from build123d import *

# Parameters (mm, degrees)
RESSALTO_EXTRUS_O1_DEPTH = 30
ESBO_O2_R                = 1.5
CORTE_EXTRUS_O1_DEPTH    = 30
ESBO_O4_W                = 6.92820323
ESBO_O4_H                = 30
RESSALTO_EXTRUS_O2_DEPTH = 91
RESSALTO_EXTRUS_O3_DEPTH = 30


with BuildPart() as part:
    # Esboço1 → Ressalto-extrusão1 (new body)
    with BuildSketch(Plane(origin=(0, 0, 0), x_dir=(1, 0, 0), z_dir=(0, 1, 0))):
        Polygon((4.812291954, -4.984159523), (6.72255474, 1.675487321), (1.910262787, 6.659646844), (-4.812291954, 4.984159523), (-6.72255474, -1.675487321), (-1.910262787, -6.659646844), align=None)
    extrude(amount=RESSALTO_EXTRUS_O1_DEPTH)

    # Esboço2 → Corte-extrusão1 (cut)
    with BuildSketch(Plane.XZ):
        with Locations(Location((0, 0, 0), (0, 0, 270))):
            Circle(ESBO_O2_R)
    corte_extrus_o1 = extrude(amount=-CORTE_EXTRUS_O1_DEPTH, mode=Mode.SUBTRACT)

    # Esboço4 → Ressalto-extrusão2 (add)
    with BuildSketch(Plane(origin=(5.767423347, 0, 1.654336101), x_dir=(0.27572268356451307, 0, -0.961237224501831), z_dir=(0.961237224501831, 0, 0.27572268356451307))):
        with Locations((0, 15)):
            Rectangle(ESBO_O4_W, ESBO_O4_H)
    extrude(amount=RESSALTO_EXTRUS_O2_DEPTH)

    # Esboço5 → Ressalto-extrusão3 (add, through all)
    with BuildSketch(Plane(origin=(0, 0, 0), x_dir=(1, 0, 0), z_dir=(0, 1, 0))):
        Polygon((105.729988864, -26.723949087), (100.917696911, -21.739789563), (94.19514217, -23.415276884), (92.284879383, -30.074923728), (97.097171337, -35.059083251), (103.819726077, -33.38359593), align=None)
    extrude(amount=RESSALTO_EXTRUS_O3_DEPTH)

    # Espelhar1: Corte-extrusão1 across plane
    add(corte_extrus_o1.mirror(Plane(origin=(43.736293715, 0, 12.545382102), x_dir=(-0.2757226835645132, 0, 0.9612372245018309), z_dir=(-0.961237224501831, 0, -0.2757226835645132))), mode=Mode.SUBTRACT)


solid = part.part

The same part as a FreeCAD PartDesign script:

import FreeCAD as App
import Part
import Sketcher
Q = App.Units.Quantity


def add_polygon(sketch, points):
    """Adds a closed chain of lines whose ends are joined by coincident constraints."""
    first, n = sketch.GeometryCount, len(points)
    for a, b in zip(points, points[1:] + points[:1]):
        sketch.addGeometry(Part.LineSegment(App.Vector(*a, 0), App.Vector(*b, 0)), False)
    for i in range(n):
        sketch.addConstraint(Sketcher.Constraint("Coincident", first + i, 2, first + (i + 1) % n, 1))

doc = App.newDocument("Part")
body = doc.addObject("PartDesign::Body", "Body")

sketch1 = body.newObject("Sketcher::SketchObject", "Sketch")
sketch1.AttachmentSupport = (doc.getObject("XZ_Plane"), [""])
sketch1.MapMode = "FlatFace"
add_polygon(sketch1, [(5, 5), (7, -2), (2, -7), (-5, -5), (-7, 2), (-2, 7)])
sketch1.addConstraint([
    Sketcher.Constraint("Symmetric", 0, 2, 3, 2, -1, 1),
    Sketcher.Constraint("Symmetric", 1, 2, 4, 2, -1, 1),
    Sketcher.Constraint("Symmetric", 2, 2, 5, 2, -1, 1),
    Sketcher.Constraint("Equal", 0, 1),
    Sketcher.Constraint("Equal", 1, 2),
    Sketcher.Constraint("DistanceX", 2, 2, -1, 1, Q("4.812292 mm")),
    Sketcher.Constraint("DistanceY", 2, 2, -1, 1, Q("4.98416 mm")),
    Sketcher.Constraint("DistanceX", 1, 2, 0, 2, Q("4.812292 mm")),
    Sketcher.Constraint("DistanceY", 1, 2, 0, 2, Q("4.98416 mm")),
])
pad1 = body.newObject("PartDesign::Pad", "Pad")
pad1.Profile = sketch1
pad1.Length = 30
pad1.Reversed = True

sketch2 = body.newObject("Sketcher::SketchObject", "Sketch001")
sketch2.AttachmentSupport = (doc.getObject("XZ_Plane"), [""])
sketch2.MapMode = "FlatFace"
sketch2.addGeometry(Part.Circle(App.Vector(0, 0, 0), App.Vector(0, 0, 1), 1.5), False)
sketch2.addConstraint([
    Sketcher.Constraint("Coincident", 0, 3, -1, 1),
    Sketcher.Constraint("Diameter", 0, Q("3 mm")),
])
pocket1 = body.newObject("PartDesign::Pocket", "Pocket")
pocket1.Profile = sketch2
pocket1.Length = 30

sketch3 = body.newObject("Sketcher::SketchObject", "Sketch002")
sketch3.Placement = App.Placement(App.Vector(5.767423, 0, 1.654336), App.Rotation(App.Vector(0.275722684, 0, -0.961237225), App.Vector(0, 1.000000001, 0), App.Vector(0.961237225, 0, 0.275722684), "ZXY"))
add_polygon(sketch3, [(-3, 30), (-3, 0), (3, 0), (3, 30)])
sketch3.addConstraint([
    Sketcher.Constraint("Vertical", 0),
    Sketcher.Constraint("Horizontal", 1),
    Sketcher.Constraint("Vertical", 2),
    Sketcher.Constraint("Horizontal", 3),
    Sketcher.Constraint("Symmetric", 0, 2, 1, 2, -1, 1),
    Sketcher.Constraint("DistanceY", 0, 2, 0, 1, Q("30 mm")),
    Sketcher.Constraint("DistanceX", 0, 2, -1, 1, Q("3.464102 mm")),
])
pad2 = body.newObject("PartDesign::Pad", "Pad001")
pad2.Profile = sketch3
pad2.Length = 91

sketch4 = body.newObject("Sketcher::SketchObject", "Sketch003")
sketch4.AttachmentSupport = (doc.getObject("XZ_Plane"), [""])
sketch4.MapMode = "FlatFace"
add_polygon(sketch4, [(106, 27), (101, 22), (94, 23), (92, 30), (97, 35), (104, 33)])
sketch4.addConstraint([
    Sketcher.Constraint("Parallel", 0, 3),
    Sketcher.Constraint("Parallel", 1, 4),
    Sketcher.Constraint("Parallel", 2, 5),
    Sketcher.Constraint("Equal", 0, 1),
    Sketcher.Constraint("Equal", 1, 2),
    Sketcher.Constraint("Equal", 2, 3),
    Sketcher.Constraint("DistanceY", -1, 1, 0, 2, Q("21.73979 mm")),
    Sketcher.Constraint("DistanceX", -1, 1, 2, 2, Q("92.284879 mm")),
    Sketcher.Constraint("DistanceX", -1, 1, 3, 2, Q("97.097171 mm")),
    Sketcher.Constraint("DistanceX", -1, 1, 5, 2, Q("105.729989 mm")),
    Sketcher.Constraint("DistanceY", -1, 1, 5, 2, Q("26.723949 mm")),
    Sketcher.Constraint("DistanceX", 1, 2, 3, 2, Q("2.902029 mm")),
])
pad3 = body.newObject("PartDesign::Pad", "Pad002")
pad3.Profile = sketch4
pad3.Length = 30
pad3.Reversed = True
doc.recompute()

datumplane = body.newObject("PartDesign::Plane", "DatumPlane")
datumplane.Placement = App.Placement(App.Vector(43.736294, 0, 12.545382), App.Rotation(App.Vector(0.275722684, 0, -0.961237224), App.Vector(0, -1.000000001, 0), App.Vector(-0.961237225, 0, -0.275722684), "ZXY"))
mirrored = body.newObject("PartDesign::Mirrored", "Mirrored")
mirrored.Originals = [pocket1]
mirrored.MirrorPlane = (datumplane, [""])
body.Tip = mirrored

doc.recompute()
